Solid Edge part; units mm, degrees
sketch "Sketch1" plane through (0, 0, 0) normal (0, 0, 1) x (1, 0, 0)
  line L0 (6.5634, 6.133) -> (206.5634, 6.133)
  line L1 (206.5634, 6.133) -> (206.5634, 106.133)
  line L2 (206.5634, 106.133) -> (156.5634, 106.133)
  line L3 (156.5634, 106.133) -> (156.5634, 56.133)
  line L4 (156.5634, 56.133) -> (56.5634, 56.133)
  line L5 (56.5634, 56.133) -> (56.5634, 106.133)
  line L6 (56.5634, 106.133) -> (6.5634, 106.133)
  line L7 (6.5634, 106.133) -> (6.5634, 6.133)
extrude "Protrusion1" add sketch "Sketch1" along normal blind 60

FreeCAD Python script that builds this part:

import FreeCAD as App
import Part
import Sketcher

V = App.Vector
Q = App.Units.Quantity


def add_polygon(sketch, points):
    """Adds a closed chain of lines whose ends are joined by coincident constraints."""
    first, n = sketch.GeometryCount, len(points)
    for a, b in zip(points, points[1:] + points[:1]):
        sketch.addGeometry(Part.LineSegment(App.Vector(*a, 0), App.Vector(*b, 0)), False)
    for i in range(n):
        sketch.addConstraint(Sketcher.Constraint("Coincident", first + i, 2, first + (i + 1) % n, 1))

doc = App.newDocument("Part")
body = doc.addObject("PartDesign::Body", "Body")

# Sketch on XY plane
sketch1 = body.newObject("Sketcher::SketchObject", "Sketch")
sketch1.AttachmentSupport = (doc.getObject("XY_Plane"), [""])
sketch1.MapMode = "FlatFace"
add_polygon(sketch1, [(7, 106), (7, 6), (207, 6), (207, 106), (157, 106), (157, 56), (57, 56), (57, 106)])  # lines 0-7
sketch1.addConstraint(Sketcher.Constraint("Vertical", 0))
sketch1.addConstraint(Sketcher.Constraint("Horizontal", 1))
sketch1.addConstraint(Sketcher.Constraint("Vertical", 2))
sketch1.addConstraint(Sketcher.Constraint("Horizontal", 3))
sketch1.addConstraint(Sketcher.Constraint("Vertical", 4))
sketch1.addConstraint(Sketcher.Constraint("Horizontal", 5))
sketch1.addConstraint(Sketcher.Constraint("Vertical", 6))
sketch1.addConstraint(Sketcher.Constraint("Horizontal", 7))
sketch1.addConstraint(Sketcher.Constraint("Horizontal", 3, 2, 6, 2))
sketch1.addConstraint(Sketcher.Constraint("Equal", 3, 7))
sketch1.addConstraint(Sketcher.Constraint("Equal", 5, 0))
sketch1.addConstraint(Sketcher.Constraint("Equal", 7, 4))
sketch1.addConstraint(Sketcher.Constraint("DistanceX", 1, 1, 1, 2, Q("200 mm")))
sketch1.addConstraint(Sketcher.Constraint("DistanceX", 3, 2, 3, 1, Q("50 mm")))
sketch1.addConstraint(Sketcher.Constraint("DistanceY", -1, 1, 0, 2, Q("6.133 mm")))
sketch1.addConstraint(Sketcher.Constraint("DistanceX", -1, 1, 0, 2, Q("6.5634 mm")))
pad1 = body.newObject("PartDesign::Pad", "Pad")
pad1.Profile = sketch1
pad1.Length = 60

doc.recompute()
